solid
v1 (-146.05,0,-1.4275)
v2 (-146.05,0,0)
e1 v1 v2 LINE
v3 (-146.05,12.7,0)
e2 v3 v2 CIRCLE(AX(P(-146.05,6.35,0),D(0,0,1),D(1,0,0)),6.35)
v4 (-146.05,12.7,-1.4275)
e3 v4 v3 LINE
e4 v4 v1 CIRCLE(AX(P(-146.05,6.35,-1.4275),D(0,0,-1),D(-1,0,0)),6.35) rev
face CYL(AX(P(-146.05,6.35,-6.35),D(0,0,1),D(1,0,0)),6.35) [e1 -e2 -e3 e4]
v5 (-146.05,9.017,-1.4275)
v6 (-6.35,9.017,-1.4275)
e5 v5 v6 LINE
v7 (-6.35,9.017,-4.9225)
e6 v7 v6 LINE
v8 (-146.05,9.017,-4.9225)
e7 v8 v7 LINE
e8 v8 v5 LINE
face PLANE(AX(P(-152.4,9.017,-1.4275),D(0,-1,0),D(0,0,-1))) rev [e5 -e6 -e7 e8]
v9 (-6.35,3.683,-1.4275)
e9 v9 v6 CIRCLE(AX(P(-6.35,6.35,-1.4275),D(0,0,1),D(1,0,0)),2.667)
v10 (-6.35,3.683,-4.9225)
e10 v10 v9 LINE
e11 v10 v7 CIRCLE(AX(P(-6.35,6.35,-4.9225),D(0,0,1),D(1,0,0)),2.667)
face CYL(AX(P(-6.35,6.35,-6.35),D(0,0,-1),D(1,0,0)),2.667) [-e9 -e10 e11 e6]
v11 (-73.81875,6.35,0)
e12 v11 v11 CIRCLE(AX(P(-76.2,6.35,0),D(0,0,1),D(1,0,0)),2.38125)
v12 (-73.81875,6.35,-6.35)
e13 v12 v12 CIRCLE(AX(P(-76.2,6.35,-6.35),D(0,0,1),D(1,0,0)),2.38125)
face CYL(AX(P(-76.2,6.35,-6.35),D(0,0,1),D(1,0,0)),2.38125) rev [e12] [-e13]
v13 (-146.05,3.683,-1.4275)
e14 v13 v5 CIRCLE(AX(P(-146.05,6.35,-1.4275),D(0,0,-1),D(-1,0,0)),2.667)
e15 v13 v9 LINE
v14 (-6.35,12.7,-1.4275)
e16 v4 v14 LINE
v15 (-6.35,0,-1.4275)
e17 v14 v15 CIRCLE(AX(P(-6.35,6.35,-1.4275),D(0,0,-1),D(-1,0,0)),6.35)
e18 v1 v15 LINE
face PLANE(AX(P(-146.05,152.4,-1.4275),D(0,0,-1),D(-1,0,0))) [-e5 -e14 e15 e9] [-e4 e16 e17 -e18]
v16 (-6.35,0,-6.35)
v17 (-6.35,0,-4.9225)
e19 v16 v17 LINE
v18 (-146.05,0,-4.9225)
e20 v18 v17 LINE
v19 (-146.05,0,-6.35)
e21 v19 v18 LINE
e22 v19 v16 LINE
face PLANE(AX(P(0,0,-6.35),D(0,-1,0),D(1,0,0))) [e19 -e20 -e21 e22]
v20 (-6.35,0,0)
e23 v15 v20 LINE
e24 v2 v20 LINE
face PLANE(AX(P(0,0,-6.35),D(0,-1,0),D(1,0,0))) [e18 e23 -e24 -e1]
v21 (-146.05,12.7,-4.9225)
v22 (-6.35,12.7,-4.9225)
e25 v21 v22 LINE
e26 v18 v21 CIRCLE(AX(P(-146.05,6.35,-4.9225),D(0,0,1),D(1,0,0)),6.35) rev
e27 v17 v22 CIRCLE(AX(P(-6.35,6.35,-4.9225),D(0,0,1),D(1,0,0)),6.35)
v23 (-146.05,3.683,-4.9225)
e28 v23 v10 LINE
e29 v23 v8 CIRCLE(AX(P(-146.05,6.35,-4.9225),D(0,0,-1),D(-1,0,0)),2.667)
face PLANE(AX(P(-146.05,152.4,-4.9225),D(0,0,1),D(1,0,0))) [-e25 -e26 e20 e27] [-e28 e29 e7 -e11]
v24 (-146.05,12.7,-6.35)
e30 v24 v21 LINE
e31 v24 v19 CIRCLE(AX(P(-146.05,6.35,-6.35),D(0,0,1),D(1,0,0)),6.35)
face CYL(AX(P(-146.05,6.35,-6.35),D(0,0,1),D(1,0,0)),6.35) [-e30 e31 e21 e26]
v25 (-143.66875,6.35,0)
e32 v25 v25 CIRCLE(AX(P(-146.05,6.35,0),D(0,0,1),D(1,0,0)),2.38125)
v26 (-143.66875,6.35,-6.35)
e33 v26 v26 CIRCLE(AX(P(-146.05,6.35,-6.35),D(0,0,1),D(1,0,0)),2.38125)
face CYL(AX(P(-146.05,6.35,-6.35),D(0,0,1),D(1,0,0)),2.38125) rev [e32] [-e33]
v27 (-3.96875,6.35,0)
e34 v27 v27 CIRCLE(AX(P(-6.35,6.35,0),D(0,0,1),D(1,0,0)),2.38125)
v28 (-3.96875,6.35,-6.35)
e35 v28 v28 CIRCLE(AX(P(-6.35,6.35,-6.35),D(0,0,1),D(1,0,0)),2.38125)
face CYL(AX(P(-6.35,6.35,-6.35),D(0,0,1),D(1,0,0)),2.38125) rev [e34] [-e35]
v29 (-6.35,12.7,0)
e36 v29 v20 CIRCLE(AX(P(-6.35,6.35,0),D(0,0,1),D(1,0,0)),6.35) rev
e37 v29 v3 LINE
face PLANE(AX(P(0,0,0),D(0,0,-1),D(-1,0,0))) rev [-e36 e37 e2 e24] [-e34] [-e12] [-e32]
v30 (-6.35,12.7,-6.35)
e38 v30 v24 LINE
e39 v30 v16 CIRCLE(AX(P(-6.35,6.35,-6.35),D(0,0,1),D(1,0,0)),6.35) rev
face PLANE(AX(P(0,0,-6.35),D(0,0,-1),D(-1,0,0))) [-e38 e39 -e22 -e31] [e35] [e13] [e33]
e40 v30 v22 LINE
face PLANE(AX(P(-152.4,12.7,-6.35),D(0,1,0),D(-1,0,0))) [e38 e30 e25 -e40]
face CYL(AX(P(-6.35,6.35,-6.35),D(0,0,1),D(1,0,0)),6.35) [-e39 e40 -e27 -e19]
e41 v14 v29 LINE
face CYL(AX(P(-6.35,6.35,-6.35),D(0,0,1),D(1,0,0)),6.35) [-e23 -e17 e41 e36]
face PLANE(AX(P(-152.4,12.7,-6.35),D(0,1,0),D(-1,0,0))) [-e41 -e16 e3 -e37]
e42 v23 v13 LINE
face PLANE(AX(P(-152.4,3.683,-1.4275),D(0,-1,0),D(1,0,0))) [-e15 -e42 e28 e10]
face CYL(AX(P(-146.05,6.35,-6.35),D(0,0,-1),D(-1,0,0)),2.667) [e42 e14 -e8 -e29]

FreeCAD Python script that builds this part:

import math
import FreeCAD as App
import Part
import Sketcher

V = App.Vector
Q = App.Units.Quantity

doc = App.newDocument("Part")
body = doc.addObject("PartDesign::Body", "Body")

sketch1 = body.newObject("Sketcher::SketchObject", "Sketch")
sketch1.AttachmentSupport = (doc.getObject("XY_Plane"), [""])
sketch1.MapMode = "FlatFace"
sketch1.addGeometry([
    Part.LineSegment(V(-152.4, 12.7, 0), V(-152.4, 0, 0)),
    Part.LineSegment(V(-152.4, 0, 0), V(0, 0, 0)),
    Part.LineSegment(V(0, 0, 0), V(0, 12.7, 0)),
    Part.LineSegment(V(0, 12.7, 0), V(-152.4, 12.7, 0)),
], False)
sketch1.addConstraint([
    Sketcher.Constraint("Coincident", 0, 2, 1, 1),
    Sketcher.Constraint("Coincident", 1, 2, 2, 1),
    Sketcher.Constraint("Coincident", 2, 2, 3, 1),
    Sketcher.Constraint("Coincident", 3, 2, 0, 1),
    Sketcher.Constraint("Vertical", 0),
    Sketcher.Constraint("Horizontal", 1),
    Sketcher.Constraint("Vertical", 2),
    Sketcher.Constraint("Horizontal", 3),
    Sketcher.Constraint("Coincident", 1, 2, -1, 1),
    Sketcher.Constraint("DistanceX", 1, 1, 1, 2, Q("6 in")),
    Sketcher.Constraint("DistanceY", 0, 2, 0, 1, Q("0.5 in")),
])
pad1 = body.newObject("PartDesign::Pad", "Pad")
pad1.Profile = sketch1
pad1.Length = Q("0.25 in")
pad1.Reversed = True

sketch2 = body.newObject("Sketcher::SketchObject", "Sketch001")
sketch2.AttachmentSupport = (doc.getObject("XY_Plane"), [""])
sketch2.MapMode = "FlatFace"
sketch2.addGeometry([
    Part.Circle(V(-146.05, 6.35, 0), V(0, 0, 1), 2.38125),
    Part.Circle(V(-76.2, 6.35, 0), V(0, 0, 1), 2.38125),
    Part.Circle(V(-6.35, 6.35, 0), V(0, 0, 1), 2.38125),
    Part.LineSegment(V(0, 12.7, 0), V(-6.35, 12.7, 0)),
    Part.ArcOfCircle(Part.Circle(V(-6.35, 6.35, 0), V(0, 0, 1), 6.35), math.radians(0), math.radians(90)),
    Part.LineSegment(V(0, 6.35, 0), V(0, 12.7, 0)),
    Part.LineSegment(V(0, 0, 0), V(0, 6.35, 0)),
    Part.ArcOfCircle(Part.Circle(V(-6.35, 6.35, 0), V(0, 0, 1), 6.35), math.radians(-90), math.radians(0)),
    Part.LineSegment(V(-6.35, 0, 0), V(0, 0, 0)),
    Part.ArcOfCircle(Part.Circle(V(-146.05, 6.35, 0), V(0, 0, 1), 6.35), math.radians(90), math.radians(180)),
    Part.LineSegment(V(-146.05, 12.7, 0), V(-152.4, 12.7, 0)),
    Part.LineSegment(V(-152.4, 12.7, 0), V(-152.4, 6.35, 0)),
    Part.ArcOfCircle(Part.Circle(V(-146.05, 6.35, 0), V(0, 0, 1), 6.35), math.radians(180), math.radians(270)),
    Part.LineSegment(V(-152.4, 6.35, 0), V(-152.4, 0, 0)),
    Part.LineSegment(V(-152.4, 0, 0), V(-146.05, 0, 0)),
], False)
sketch2.addConstraint([
    Sketcher.Constraint("Tangent", 3, 2, 4, 2),
    Sketcher.Constraint("Tangent", 4, 1, 5, 1),
    Sketcher.Constraint("Coincident", 5, 2, 3, 1),
    Sketcher.Constraint("Tangent", 6, 2, 7, 2),
    Sketcher.Constraint("Tangent", 7, 1, 8, 1),
    Sketcher.Constraint("Coincident", 8, 2, 6, 1),
    Sketcher.Constraint("Tangent", 9, 1, 10, 1),
    Sketcher.Constraint("Coincident", 10, 2, 11, 1),
    Sketcher.Constraint("Tangent", 11, 2, 9, 2),
    Sketcher.Constraint("Tangent", 12, 1, 13, 1),
    Sketcher.Constraint("Coincident", 13, 2, 14, 1),
    Sketcher.Constraint("Tangent", 14, 2, 12, 2),
    Sketcher.Constraint("Horizontal", 3),
    Sketcher.Constraint("Vertical", 5),
    Sketcher.Constraint("Vertical", 6),
    Sketcher.Constraint("Horizontal", 8),
    Sketcher.Constraint("Horizontal", 10),
    Sketcher.Constraint("Vertical", 11),
    Sketcher.Constraint("Vertical", 13),
    Sketcher.Constraint("Horizontal", 14),
    Sketcher.Constraint("Coincident", 8, 2, -1, 1),
    Sketcher.Constraint("Coincident", 4, 3, 2, 3),
    Sketcher.Constraint("Coincident", 7, 3, 2, 3),
    Sketcher.Constraint("Coincident", 9, 3, 0, 3),
    Sketcher.Constraint("Coincident", 12, 3, 0, 3),
    Sketcher.Constraint("Equal", 0, 1),
    Sketcher.Constraint("Equal", 1, 2),
    Sketcher.Constraint("Equal", 4, 7),
    Sketcher.Constraint("Equal", 7, 9),
    Sketcher.Constraint("Equal", 9, 12),
    Sketcher.Constraint("PointOnObject", 13, 2, -1),
    Sketcher.Constraint("Horizontal", 0, 3, 1, 3),
    Sketcher.Constraint("Radius", 4, Q("0.25 in")),
    Sketcher.Constraint("Diameter", 0, Q("0.1875 in")),
    Sketcher.Constraint("DistanceX", 1, 3, -1, 1, Q("3 in")),
    Sketcher.Constraint("DistanceX", 10, 2, -1, 1, Q("6 in")),
])
pocket1 = body.newObject("PartDesign::Pocket", "Pocket")
pocket1.Profile = sketch2
pocket1.Type = "ThroughAll"

sketch3 = body.newObject("Sketcher::SketchObject", "Sketch002")
sketch3.AttachmentSupport = (doc.getObject("XZ_Plane"), [""])
sketch3.MapMode = "FlatFace"
sketch3.AttachmentOffset = App.Placement(V(0, 0, -0.25 * 25.4), App.Rotation())
sketch3.addGeometry([
    Part.LineSegment(V(-166.570765, -1.4275, 0), V(-148.717, -1.4275, 0)),
    Part.LineSegment(V(-148.717, -1.4275, 0), V(-148.717, -4.9225, 0)),
    Part.LineSegment(V(-148.717, -4.9225, 0), V(-166.570765, -4.9225, 0)),
    Part.LineSegment(V(-166.570765, -4.9225, 0), V(-166.570765, -1.4275, 0)),
], False)
sketch3.addGeometry(Part.LineSegment(V(-146.05, -4.9225, 0), V(-146.05, -1.4275, 0)), True)
sketch3.addConstraint([
    Sketcher.Constraint("Coincident", 0, 2, 1, 1),
    Sketcher.Constraint("Coincident", 1, 2, 2, 1),
    Sketcher.Constraint("Coincident", 2, 2, 3, 1),
    Sketcher.Constraint("Coincident", 3, 2, 0, 1),
    Sketcher.Constraint("Horizontal", 0),
    Sketcher.Constraint("Vertical", 1),
    Sketcher.Constraint("Horizontal", 2),
    Sketcher.Constraint("Vertical", 3),
    Sketcher.Constraint("Vertical", 4),
    Sketcher.Constraint("Horizontal", 2, 2, 4, 1),
    Sketcher.Constraint("Horizontal", 3, 2, 4, 2),
    Sketcher.Constraint("DistanceX", 4, 1, -1, 1, Q("5.75 in")),
    Sketcher.Constraint("DistanceX", 0, 2, -1, 1, Q("5.855 in")),
    Sketcher.Constraint("DistanceY", 1, 2, 1, 1, Q("3.495 mm")),
    Sketcher.Constraint("DistanceY", 0, 2, -1, 1, Q("1.4275 mm")),
    Sketcher.Constraint("DistanceX", 0, 1, 0, 2, Q("17.853765 mm")),
])
groove = body.newObject("PartDesign::Groove", "Groove")
groove.Profile = sketch3
groove.ReferenceAxis = (sketch3, ["Axis0"])
groove.Angle = 90

sketch4 = body.newObject("Sketcher::SketchObject", "Sketch003")
sketch4.AttachmentSupport = (doc.getObject("XZ_Plane"), [""])
sketch4.MapMode = "FlatFace"
sketch4.AttachmentOffset = App.Placement(V(0, 0, -0.25 * 25.4), App.Rotation())
sketch4.addGeometry([
    Part.LineSegment(V(-166.570765, -1.4275, 0), V(-148.717, -1.4275, 0)),
    Part.LineSegment(V(-148.717, -1.4275, 0), V(-148.717, -4.9225, 0)),
    Part.LineSegment(V(-148.717, -4.9225, 0), V(-166.570765, -4.9225, 0)),
    Part.LineSegment(V(-166.570765, -4.9225, 0), V(-166.570765, -1.4275, 0)),
], False)
sketch4.addGeometry(Part.LineSegment(V(-146.05, -1.4275, 0), V(-146.05, -4.9225, 0)), True)
sketch4.addConstraint([
    Sketcher.Constraint("Coincident", 0, 2, 1, 1),
    Sketcher.Constraint("Coincident", 1, 2, 2, 1),
    Sketcher.Constraint("Coincident", 2, 2, 3, 1),
    Sketcher.Constraint("Coincident", 3, 2, 0, 1),
    Sketcher.Constraint("Horizontal", 0),
    Sketcher.Constraint("Vertical", 1),
    Sketcher.Constraint("Horizontal", 2),
    Sketcher.Constraint("Vertical", 3),
    Sketcher.Constraint("Vertical", 4),
    Sketcher.Constraint("Horizontal", 3, 2, 4, 1),
    Sketcher.Constraint("Horizontal", 2, 2, 4, 2),
    Sketcher.Constraint("DistanceX", 4, 1, -1, 1, Q("5.75 in")),
    Sketcher.Constraint("DistanceX", 0, 2, -1, 1, Q("5.855 in")),
    Sketcher.Constraint("DistanceY", 1, 2, 1, 1, Q("3.495 mm")),
    Sketcher.Constraint("DistanceY", 0, 2, -1, 1, Q("1.4275 mm")),
    Sketcher.Constraint("DistanceX", 0, 1, 0, 2, Q("17.853765 mm")),
])
groove2 = body.newObject("PartDesign::Groove", "Groove001")
groove2.Profile = sketch4
groove2.ReferenceAxis = (sketch4, ["Axis0"])
groove2.Angle = 90
doc.recompute()

datumplane = body.newObject("PartDesign::Plane", "DatumPlane")
datumplane.AttachmentSupport = (doc.getObject("YZ_Plane"), [""])
datumplane.MapMode = "FlatFace"
datumplane.AttachmentOffset = App.Placement(V(0, 0, -3 * 25.4), App.Rotation())
mirrored = body.newObject("PartDesign::Mirrored", "Mirrored")
mirrored.Originals = [groove, groove2]
mirrored.MirrorPlane = (datumplane, [""])
body.Tip = mirrored

sketch5 = body.newObject("Sketcher::SketchObject", "Sketch004")
sketch5.AttachmentSupport = (doc.getObject("YZ_Plane"), [""])
sketch5.MapMode = "FlatFace"
sketch5.addGeometry([
    Part.LineSegment(V(12.7, -1.4275, 0), V(9.017, -1.4275, 0)),
    Part.LineSegment(V(9.017, -1.4275, 0), V(9.017, -4.9225, 0)),
    Part.LineSegment(V(9.017, -4.9225, 0), V(12.7, -4.9225, 0)),
    Part.LineSegment(V(12.7, -4.9225, 0), V(12.7, -1.4275, 0)),
], False)
sketch5.addConstraint([
    Sketcher.Constraint("Coincident", 0, 2, 1, 1),
    Sketcher.Constraint("Coincident", 1, 2, 2, 1),
    Sketcher.Constraint("Coincident", 2, 2, 3, 1),
    Sketcher.Constraint("Coincident", 3, 2, 0, 1),
    Sketcher.Constraint("Horizontal", 0),
    Sketcher.Constraint("Vertical", 1),
    Sketcher.Constraint("Horizontal", 2),
    Sketcher.Constraint("Vertical", 3),
    Sketcher.Constraint("DistanceX", -1, 1, 2, 2, Q("0.5 in")),
    Sketcher.Constraint("DistanceX", 0, 2, 0, 1, Q("0.145 in")),
    Sketcher.Constraint("DistanceY", 1, 2, 1, 1, Q("3.495 mm")),
    Sketcher.Constraint("DistanceY", 0, 2, -1, 1, Q("1.4275 mm")),
])
pocket2 = body.newObject("PartDesign::Pocket", "Pocket001")
pocket2.Profile = sketch5
pocket2.Type = "ThroughAll"
doc.recompute()

datumplane2 = body.newObject("PartDesign::Plane", "DatumPlane001")
datumplane2.AttachmentSupport = (doc.getObject("XZ_Plane"), [""])
datumplane2.MapMode = "FlatFace"
datumplane2.AttachmentOffset = App.Placement(V(0, 0, -0.25 * 25.4), App.Rotation())
mirrored2 = body.newObject("PartDesign::Mirrored", "Mirrored001")
mirrored2.Originals = [pocket2]
mirrored2.MirrorPlane = (datumplane2, [""])
body.Tip = mirrored2

doc.recompute()
